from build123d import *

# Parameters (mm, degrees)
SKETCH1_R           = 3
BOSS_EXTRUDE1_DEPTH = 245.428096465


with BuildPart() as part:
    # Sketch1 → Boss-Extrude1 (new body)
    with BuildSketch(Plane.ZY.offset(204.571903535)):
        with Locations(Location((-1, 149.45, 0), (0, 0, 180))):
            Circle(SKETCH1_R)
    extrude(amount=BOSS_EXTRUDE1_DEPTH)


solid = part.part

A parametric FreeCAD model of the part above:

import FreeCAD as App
import Part
import Sketcher

doc = App.newDocument("Part")
body = doc.addObject("PartDesign::Body", "Body")

# Sketch on YZ plane
sketch1 = body.newObject("Sketcher::SketchObject", "Sketch")
sketch1.AttachmentSupport = (doc.getObject("YZ_Plane"), [""])
sketch1.MapMode = "FlatFace"
sketch1.AttachmentOffset = App.Placement(App.Vector(0, 0, -204.571904), App.Rotation())
sketch1.addGeometry(Part.Circle(App.Vector(149.4, -1, 0), App.Vector(0, 0, 1), 3), False)
sketch1.addConstraint(Sketcher.Constraint("Diameter", 0, 6.0))
sketch1.addConstraint(Sketcher.Constraint("DistanceY", 0, 3, -1, 1, 1.0))
sketch1.addConstraint(Sketcher.Constraint("DistanceX", -1, 1, 0, 3, 149.45))
pad1 = body.newObject("PartDesign::Pad", "Pad")
pad1.Profile = sketch1
pad1.Length = 245.428096
pad1.Reversed = True

doc.recompute()
